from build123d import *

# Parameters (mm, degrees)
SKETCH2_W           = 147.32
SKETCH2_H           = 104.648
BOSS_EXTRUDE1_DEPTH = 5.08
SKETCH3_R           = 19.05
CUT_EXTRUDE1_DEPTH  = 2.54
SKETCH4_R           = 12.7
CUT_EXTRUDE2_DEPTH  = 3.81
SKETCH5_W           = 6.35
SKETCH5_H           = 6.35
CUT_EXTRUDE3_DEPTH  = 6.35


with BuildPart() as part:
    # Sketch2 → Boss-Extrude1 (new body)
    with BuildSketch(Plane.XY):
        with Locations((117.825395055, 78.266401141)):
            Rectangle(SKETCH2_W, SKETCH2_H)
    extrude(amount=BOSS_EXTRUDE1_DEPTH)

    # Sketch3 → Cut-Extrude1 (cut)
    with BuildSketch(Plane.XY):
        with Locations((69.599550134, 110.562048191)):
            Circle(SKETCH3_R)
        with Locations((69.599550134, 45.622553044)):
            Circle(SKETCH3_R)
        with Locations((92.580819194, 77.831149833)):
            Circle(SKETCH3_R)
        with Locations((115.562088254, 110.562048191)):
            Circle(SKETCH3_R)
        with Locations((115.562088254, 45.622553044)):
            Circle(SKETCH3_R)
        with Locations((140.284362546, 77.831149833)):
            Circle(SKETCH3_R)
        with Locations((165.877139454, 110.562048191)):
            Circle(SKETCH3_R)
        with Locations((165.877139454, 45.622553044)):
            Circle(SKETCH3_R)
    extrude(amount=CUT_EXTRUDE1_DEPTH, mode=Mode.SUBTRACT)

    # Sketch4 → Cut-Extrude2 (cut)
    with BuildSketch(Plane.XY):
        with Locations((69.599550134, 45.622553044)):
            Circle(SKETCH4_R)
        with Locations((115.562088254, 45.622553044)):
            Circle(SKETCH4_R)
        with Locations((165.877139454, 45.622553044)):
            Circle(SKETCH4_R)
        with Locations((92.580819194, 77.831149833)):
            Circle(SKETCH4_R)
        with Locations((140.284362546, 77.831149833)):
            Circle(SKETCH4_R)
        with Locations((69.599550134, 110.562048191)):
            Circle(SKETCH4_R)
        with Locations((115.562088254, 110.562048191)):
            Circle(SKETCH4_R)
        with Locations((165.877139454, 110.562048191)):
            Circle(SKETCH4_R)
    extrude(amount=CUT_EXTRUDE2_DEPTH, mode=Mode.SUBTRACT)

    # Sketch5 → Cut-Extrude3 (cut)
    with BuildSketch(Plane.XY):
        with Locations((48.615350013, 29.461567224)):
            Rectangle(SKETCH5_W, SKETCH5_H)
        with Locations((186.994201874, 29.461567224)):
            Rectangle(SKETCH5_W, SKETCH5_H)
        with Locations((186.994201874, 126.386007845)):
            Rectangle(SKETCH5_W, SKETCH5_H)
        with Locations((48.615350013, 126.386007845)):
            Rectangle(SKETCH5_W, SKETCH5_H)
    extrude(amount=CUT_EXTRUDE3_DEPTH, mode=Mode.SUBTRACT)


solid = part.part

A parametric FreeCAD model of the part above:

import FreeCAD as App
import Part
import Sketcher
from FreeCAD import Vector
Q = App.Units.Quantity

doc = App.newDocument("Part")
body = doc.addObject("PartDesign::Body", "Body")

sketch1 = body.newObject("Sketcher::SketchObject", "Sketch")
sketch1.AttachmentSupport = (doc.getObject("XY_Plane"), [""])
sketch1.MapMode = "FlatFace"
sketch1.addGeometry([
    Part.LineSegment(Vector(44, 131, 0), Vector(44, 26, 0)),
    Part.LineSegment(Vector(44, 26, 0), Vector(191, 26, 0)),
    Part.LineSegment(Vector(191, 26, 0), Vector(191, 131, 0)),
    Part.LineSegment(Vector(191, 131, 0), Vector(44, 131, 0)),
], False)
sketch1.addConstraint([
    Sketcher.Constraint("Coincident", 0, 2, 1, 1),
    Sketcher.Constraint("Coincident", 1, 2, 2, 1),
    Sketcher.Constraint("Coincident", 2, 2, 3, 1),
    Sketcher.Constraint("Coincident", 3, 2, 0, 1),
    Sketcher.Constraint("Vertical", 0),
    Sketcher.Constraint("Horizontal", 1),
    Sketcher.Constraint("Vertical", 2),
    Sketcher.Constraint("Horizontal", 3),
    Sketcher.Constraint("DistanceX", 1, 1, 1, 2, Q("5.8 in")),
    Sketcher.Constraint("DistanceY", 0, 2, 0, 1, Q("4.12 in")),
    Sketcher.Constraint("DistanceY", -1, 1, 0, 2, 25.942401),
    Sketcher.Constraint("DistanceX", -1, 1, 0, 2, 44.165395),
])
pad1 = body.newObject("PartDesign::Pad", "Pad")
pad1.Profile = sketch1
pad1.Length = Q("0.2 in")

sketch2 = body.newObject("Sketcher::SketchObject", "Sketch001")
sketch2.AttachmentSupport = (doc.getObject("XY_Plane"), [""])
sketch2.MapMode = "FlatFace"
sketch2.addGeometry([
    Part.Circle(Vector(70, 111, 0), Vector(0, 0, 1), 19),
    Part.Circle(Vector(70, 46, 0), Vector(0, 0, 1), 19),
    Part.Circle(Vector(93, 78, 0), Vector(0, 0, 1), 19),
    Part.Circle(Vector(116, 111, 0), Vector(0, 0, 1), 19),
    Part.Circle(Vector(116, 46, 0), Vector(0, 0, 1), 19),
    Part.Circle(Vector(140, 78, 0), Vector(0, 0, 1), 19),
    Part.Circle(Vector(166, 111, 0), Vector(0, 0, 1), 19),
    Part.Circle(Vector(166, 46, 0), Vector(0, 0, 1), 19),
], False)
sketch2.addConstraint([
    Sketcher.Constraint("Equal", 0, 1),
    Sketcher.Constraint("Equal", 1, 2),
    Sketcher.Constraint("Equal", 2, 3),
    Sketcher.Constraint("Equal", 3, 4),
    Sketcher.Constraint("Equal", 4, 5),
    Sketcher.Constraint("Equal", 5, 6),
    Sketcher.Constraint("Equal", 6, 7),
    Sketcher.Constraint("Horizontal", 0, 3, 3, 3),
    Sketcher.Constraint("Horizontal", 1, 3, 4, 3),
    Sketcher.Constraint("Horizontal", 2, 3, 5, 3),
    Sketcher.Constraint("Horizontal", 3, 3, 6, 3),
    Sketcher.Constraint("Horizontal", 4, 3, 7, 3),
    Sketcher.Constraint("Vertical", 0, 3, 1, 3),
    Sketcher.Constraint("Vertical", 3, 3, 4, 3),
    Sketcher.Constraint("Vertical", 6, 3, 7, 3),
    Sketcher.Constraint("Diameter", 0, Q("1.5 in")),
    Sketcher.Constraint("DistanceY", 2, 3, 0, 3, 32.730898),
    Sketcher.Constraint("DistanceX", -1, 1, 0, 3, 69.59955),
    Sketcher.Constraint("DistanceY", -1, 1, 0, 3, 110.562048),
    Sketcher.Constraint("DistanceX", -1, 1, 2, 3, 92.580819),
    Sketcher.Constraint("DistanceX", -1, 1, 3, 3, 115.562088),
    Sketcher.Constraint("DistanceX", -1, 1, 6, 3, 165.877139),
    Sketcher.Constraint("DistanceY", -1, 1, 1, 3, 45.622553),
    Sketcher.Constraint("DistanceX", -1, 1, 5, 3, 140.284363),
])
pocket1 = body.newObject("PartDesign::Pocket", "Pocket")
pocket1.Profile = sketch2
pocket1.Length = Q("0.1 in")
pocket1.Reversed = True

sketch3 = body.newObject("Sketcher::SketchObject", "Sketch002")
sketch3.AttachmentSupport = (doc.getObject("XY_Plane"), [""])
sketch3.MapMode = "FlatFace"
sketch3.addGeometry([
    Part.Circle(Vector(70, 46, 0), Vector(0, 0, 1), 13),
    Part.Circle(Vector(116, 46, 0), Vector(0, 0, 1), 13),
    Part.Circle(Vector(166, 46, 0), Vector(0, 0, 1), 13),
    Part.Circle(Vector(93, 78, 0), Vector(0, 0, 1), 13),
    Part.Circle(Vector(140, 78, 0), Vector(0, 0, 1), 13),
    Part.Circle(Vector(70, 111, 0), Vector(0, 0, 1), 13),
    Part.Circle(Vector(116, 111, 0), Vector(0, 0, 1), 13),
    Part.Circle(Vector(166, 111, 0), Vector(0, 0, 1), 13),
], False)
sketch3.addConstraint([
    Sketcher.Constraint("Equal", 0, 1),
    Sketcher.Constraint("Equal", 1, 2),
    Sketcher.Constraint("Equal", 2, 3),
    Sketcher.Constraint("Equal", 3, 4),
    Sketcher.Constraint("Equal", 4, 5),
    Sketcher.Constraint("Equal", 5, 6),
    Sketcher.Constraint("Equal", 6, 7),
    Sketcher.Constraint("Horizontal", 0, 3, 1, 3),
    Sketcher.Constraint("Horizontal", 1, 3, 2, 3),
    Sketcher.Constraint("Horizontal", 3, 3, 4, 3),
    Sketcher.Constraint("Horizontal", 5, 3, 6, 3),
    Sketcher.Constraint("Horizontal", 6, 3, 7, 3),
    Sketcher.Constraint("Vertical", 0, 3, 5, 3),
    Sketcher.Constraint("Vertical", 1, 3, 6, 3),
    Sketcher.Constraint("Vertical", 2, 3, 7, 3),
    Sketcher.Constraint("Diameter", 0, Q("1 in")),
    Sketcher.Constraint("DistanceY", 3, 3, 5, 3, 32.730898),
    Sketcher.Constraint("DistanceX", -1, 1, 0, 3, 69.59955),
    Sketcher.Constraint("DistanceX", -1, 1, 1, 3, 115.562088),
    Sketcher.Constraint("DistanceX", -1, 1, 2, 3, 165.877139),
    Sketcher.Constraint("DistanceX", -1, 1, 3, 3, 92.580819),
    Sketcher.Constraint("DistanceY", -1, 1, 3, 3, 77.83115),
    Sketcher.Constraint("DistanceY", -1, 1, 0, 3, 45.622553),
    Sketcher.Constraint("DistanceX", -1, 1, 4, 3, 140.284363),
])
pocket2 = body.newObject("PartDesign::Pocket", "Pocket001")
pocket2.Profile = sketch3
pocket2.Length = Q("0.15 in")
pocket2.Reversed = True

sketch4 = body.newObject("Sketcher::SketchObject", "Sketch003")
sketch4.AttachmentSupport = (doc.getObject("XY_Plane"), [""])
sketch4.MapMode = "FlatFace"
sketch4.addGeometry([
    Part.LineSegment(Vector(45, 33, 0), Vector(45, 26, 0)),
    Part.LineSegment(Vector(45, 26, 0), Vector(52, 26, 0)),
    Part.LineSegment(Vector(52, 26, 0), Vector(52, 33, 0)),
    Part.LineSegment(Vector(52, 33, 0), Vector(45, 33, 0)),
    Part.LineSegment(Vector(184, 33, 0), Vector(184, 26, 0)),
    Part.LineSegment(Vector(184, 26, 0), Vector(190, 26, 0)),
    Part.LineSegment(Vector(190, 26, 0), Vector(190, 33, 0)),
    Part.LineSegment(Vector(190, 33, 0), Vector(184, 33, 0)),
    Part.LineSegment(Vector(184, 130, 0), Vector(184, 123, 0)),
    Part.LineSegment(Vector(184, 123, 0), Vector(190, 123, 0)),
    Part.LineSegment(Vector(190, 123, 0), Vector(190, 130, 0)),
    Part.LineSegment(Vector(190, 130, 0), Vector(184, 130, 0)),
    Part.LineSegment(Vector(45, 130, 0), Vector(45, 123, 0)),
    Part.LineSegment(Vector(45, 123, 0), Vector(52, 123, 0)),
    Part.LineSegment(Vector(52, 123, 0), Vector(52, 130, 0)),
    Part.LineSegment(Vector(52, 130, 0), Vector(45, 130, 0)),
], False)
sketch4.addConstraint([
    Sketcher.Constraint("Coincident", 0, 2, 1, 1),
    Sketcher.Constraint("Coincident", 1, 2, 2, 1),
    Sketcher.Constraint("Coincident", 2, 2, 3, 1),
    Sketcher.Constraint("Coincident", 3, 2, 0, 1),
    Sketcher.Constraint("Coincident", 4, 2, 5, 1),
    Sketcher.Constraint("Coincident", 5, 2, 6, 1),
    Sketcher.Constraint("Coincident", 6, 2, 7, 1),
    Sketcher.Constraint("Coincident", 7, 2, 4, 1),
    Sketcher.Constraint("Coincident", 8, 2, 9, 1),
    Sketcher.Constraint("Coincident", 9, 2, 10, 1),
    Sketcher.Constraint("Coincident", 10, 2, 11, 1),
    Sketcher.Constraint("Coincident", 11, 2, 8, 1),
    Sketcher.Constraint("Coincident", 12, 2, 13, 1),
    Sketcher.Constraint("Coincident", 13, 2, 14, 1),
    Sketcher.Constraint("Coincident", 14, 2, 15, 1),
    Sketcher.Constraint("Coincident", 15, 2, 12, 1),
    Sketcher.Constraint("Vertical", 0),
    Sketcher.Constraint("Horizontal", 1),
    Sketcher.Constraint("Vertical", 2),
    Sketcher.Constraint("Horizontal", 3),
    Sketcher.Constraint("Vertical", 4),
    Sketcher.Constraint("Horizontal", 5),
    Sketcher.Constraint("Vertical", 6),
    Sketcher.Constraint("Horizontal", 7),
    Sketcher.Constraint("Vertical", 8),
    Sketcher.Constraint("Horizontal", 9),
    Sketcher.Constraint("Vertical", 10),
    Sketcher.Constraint("Horizontal", 11),
    Sketcher.Constraint("Vertical", 12),
    Sketcher.Constraint("Horizontal", 13),
    Sketcher.Constraint("Vertical", 14),
    Sketcher.Constraint("Horizontal", 15),
    Sketcher.Constraint("Horizontal", 1, 2, 4, 2),
    Sketcher.Constraint("Horizontal", 3, 2, 6, 2),
    Sketcher.Constraint("Horizontal", 9, 2, 12, 2),
    Sketcher.Constraint("Horizontal", 11, 2, 14, 2),
    Sketcher.Constraint("Vertical", 7, 2, 8, 2),
    Sketcher.Constraint("Vertical", 6, 2, 9, 2),
    Sketcher.Constraint("Vertical", 3, 2, 12, 2),
    Sketcher.Constraint("Vertical", 2, 2, 13, 2),
    Sketcher.Constraint("Equal", 3, 5),
    Sketcher.Constraint("Equal", 15, 0),
    Sketcher.Constraint("Equal", 6, 8),
    Sketcher.Constraint("DistanceX", 1, 1, 1, 2, Q("0.25 in")),
    Sketcher.Constraint("DistanceX", -1, 1, 4, 2, 183.819202),
    Sketcher.Constraint("DistanceX", -1, 1, 0, 2, 45.44035),
    Sketcher.Constraint("DistanceY", 7, 2, 8, 2, 90.574441),
    Sketcher.Constraint("DistanceY", -1, 1, 0, 2, 26.286567),
])
pocket3 = body.newObject("PartDesign::Pocket", "Pocket002")
pocket3.Profile = sketch4
pocket3.Length = Q("0.25 in")
pocket3.Reversed = True

doc.recompute()
